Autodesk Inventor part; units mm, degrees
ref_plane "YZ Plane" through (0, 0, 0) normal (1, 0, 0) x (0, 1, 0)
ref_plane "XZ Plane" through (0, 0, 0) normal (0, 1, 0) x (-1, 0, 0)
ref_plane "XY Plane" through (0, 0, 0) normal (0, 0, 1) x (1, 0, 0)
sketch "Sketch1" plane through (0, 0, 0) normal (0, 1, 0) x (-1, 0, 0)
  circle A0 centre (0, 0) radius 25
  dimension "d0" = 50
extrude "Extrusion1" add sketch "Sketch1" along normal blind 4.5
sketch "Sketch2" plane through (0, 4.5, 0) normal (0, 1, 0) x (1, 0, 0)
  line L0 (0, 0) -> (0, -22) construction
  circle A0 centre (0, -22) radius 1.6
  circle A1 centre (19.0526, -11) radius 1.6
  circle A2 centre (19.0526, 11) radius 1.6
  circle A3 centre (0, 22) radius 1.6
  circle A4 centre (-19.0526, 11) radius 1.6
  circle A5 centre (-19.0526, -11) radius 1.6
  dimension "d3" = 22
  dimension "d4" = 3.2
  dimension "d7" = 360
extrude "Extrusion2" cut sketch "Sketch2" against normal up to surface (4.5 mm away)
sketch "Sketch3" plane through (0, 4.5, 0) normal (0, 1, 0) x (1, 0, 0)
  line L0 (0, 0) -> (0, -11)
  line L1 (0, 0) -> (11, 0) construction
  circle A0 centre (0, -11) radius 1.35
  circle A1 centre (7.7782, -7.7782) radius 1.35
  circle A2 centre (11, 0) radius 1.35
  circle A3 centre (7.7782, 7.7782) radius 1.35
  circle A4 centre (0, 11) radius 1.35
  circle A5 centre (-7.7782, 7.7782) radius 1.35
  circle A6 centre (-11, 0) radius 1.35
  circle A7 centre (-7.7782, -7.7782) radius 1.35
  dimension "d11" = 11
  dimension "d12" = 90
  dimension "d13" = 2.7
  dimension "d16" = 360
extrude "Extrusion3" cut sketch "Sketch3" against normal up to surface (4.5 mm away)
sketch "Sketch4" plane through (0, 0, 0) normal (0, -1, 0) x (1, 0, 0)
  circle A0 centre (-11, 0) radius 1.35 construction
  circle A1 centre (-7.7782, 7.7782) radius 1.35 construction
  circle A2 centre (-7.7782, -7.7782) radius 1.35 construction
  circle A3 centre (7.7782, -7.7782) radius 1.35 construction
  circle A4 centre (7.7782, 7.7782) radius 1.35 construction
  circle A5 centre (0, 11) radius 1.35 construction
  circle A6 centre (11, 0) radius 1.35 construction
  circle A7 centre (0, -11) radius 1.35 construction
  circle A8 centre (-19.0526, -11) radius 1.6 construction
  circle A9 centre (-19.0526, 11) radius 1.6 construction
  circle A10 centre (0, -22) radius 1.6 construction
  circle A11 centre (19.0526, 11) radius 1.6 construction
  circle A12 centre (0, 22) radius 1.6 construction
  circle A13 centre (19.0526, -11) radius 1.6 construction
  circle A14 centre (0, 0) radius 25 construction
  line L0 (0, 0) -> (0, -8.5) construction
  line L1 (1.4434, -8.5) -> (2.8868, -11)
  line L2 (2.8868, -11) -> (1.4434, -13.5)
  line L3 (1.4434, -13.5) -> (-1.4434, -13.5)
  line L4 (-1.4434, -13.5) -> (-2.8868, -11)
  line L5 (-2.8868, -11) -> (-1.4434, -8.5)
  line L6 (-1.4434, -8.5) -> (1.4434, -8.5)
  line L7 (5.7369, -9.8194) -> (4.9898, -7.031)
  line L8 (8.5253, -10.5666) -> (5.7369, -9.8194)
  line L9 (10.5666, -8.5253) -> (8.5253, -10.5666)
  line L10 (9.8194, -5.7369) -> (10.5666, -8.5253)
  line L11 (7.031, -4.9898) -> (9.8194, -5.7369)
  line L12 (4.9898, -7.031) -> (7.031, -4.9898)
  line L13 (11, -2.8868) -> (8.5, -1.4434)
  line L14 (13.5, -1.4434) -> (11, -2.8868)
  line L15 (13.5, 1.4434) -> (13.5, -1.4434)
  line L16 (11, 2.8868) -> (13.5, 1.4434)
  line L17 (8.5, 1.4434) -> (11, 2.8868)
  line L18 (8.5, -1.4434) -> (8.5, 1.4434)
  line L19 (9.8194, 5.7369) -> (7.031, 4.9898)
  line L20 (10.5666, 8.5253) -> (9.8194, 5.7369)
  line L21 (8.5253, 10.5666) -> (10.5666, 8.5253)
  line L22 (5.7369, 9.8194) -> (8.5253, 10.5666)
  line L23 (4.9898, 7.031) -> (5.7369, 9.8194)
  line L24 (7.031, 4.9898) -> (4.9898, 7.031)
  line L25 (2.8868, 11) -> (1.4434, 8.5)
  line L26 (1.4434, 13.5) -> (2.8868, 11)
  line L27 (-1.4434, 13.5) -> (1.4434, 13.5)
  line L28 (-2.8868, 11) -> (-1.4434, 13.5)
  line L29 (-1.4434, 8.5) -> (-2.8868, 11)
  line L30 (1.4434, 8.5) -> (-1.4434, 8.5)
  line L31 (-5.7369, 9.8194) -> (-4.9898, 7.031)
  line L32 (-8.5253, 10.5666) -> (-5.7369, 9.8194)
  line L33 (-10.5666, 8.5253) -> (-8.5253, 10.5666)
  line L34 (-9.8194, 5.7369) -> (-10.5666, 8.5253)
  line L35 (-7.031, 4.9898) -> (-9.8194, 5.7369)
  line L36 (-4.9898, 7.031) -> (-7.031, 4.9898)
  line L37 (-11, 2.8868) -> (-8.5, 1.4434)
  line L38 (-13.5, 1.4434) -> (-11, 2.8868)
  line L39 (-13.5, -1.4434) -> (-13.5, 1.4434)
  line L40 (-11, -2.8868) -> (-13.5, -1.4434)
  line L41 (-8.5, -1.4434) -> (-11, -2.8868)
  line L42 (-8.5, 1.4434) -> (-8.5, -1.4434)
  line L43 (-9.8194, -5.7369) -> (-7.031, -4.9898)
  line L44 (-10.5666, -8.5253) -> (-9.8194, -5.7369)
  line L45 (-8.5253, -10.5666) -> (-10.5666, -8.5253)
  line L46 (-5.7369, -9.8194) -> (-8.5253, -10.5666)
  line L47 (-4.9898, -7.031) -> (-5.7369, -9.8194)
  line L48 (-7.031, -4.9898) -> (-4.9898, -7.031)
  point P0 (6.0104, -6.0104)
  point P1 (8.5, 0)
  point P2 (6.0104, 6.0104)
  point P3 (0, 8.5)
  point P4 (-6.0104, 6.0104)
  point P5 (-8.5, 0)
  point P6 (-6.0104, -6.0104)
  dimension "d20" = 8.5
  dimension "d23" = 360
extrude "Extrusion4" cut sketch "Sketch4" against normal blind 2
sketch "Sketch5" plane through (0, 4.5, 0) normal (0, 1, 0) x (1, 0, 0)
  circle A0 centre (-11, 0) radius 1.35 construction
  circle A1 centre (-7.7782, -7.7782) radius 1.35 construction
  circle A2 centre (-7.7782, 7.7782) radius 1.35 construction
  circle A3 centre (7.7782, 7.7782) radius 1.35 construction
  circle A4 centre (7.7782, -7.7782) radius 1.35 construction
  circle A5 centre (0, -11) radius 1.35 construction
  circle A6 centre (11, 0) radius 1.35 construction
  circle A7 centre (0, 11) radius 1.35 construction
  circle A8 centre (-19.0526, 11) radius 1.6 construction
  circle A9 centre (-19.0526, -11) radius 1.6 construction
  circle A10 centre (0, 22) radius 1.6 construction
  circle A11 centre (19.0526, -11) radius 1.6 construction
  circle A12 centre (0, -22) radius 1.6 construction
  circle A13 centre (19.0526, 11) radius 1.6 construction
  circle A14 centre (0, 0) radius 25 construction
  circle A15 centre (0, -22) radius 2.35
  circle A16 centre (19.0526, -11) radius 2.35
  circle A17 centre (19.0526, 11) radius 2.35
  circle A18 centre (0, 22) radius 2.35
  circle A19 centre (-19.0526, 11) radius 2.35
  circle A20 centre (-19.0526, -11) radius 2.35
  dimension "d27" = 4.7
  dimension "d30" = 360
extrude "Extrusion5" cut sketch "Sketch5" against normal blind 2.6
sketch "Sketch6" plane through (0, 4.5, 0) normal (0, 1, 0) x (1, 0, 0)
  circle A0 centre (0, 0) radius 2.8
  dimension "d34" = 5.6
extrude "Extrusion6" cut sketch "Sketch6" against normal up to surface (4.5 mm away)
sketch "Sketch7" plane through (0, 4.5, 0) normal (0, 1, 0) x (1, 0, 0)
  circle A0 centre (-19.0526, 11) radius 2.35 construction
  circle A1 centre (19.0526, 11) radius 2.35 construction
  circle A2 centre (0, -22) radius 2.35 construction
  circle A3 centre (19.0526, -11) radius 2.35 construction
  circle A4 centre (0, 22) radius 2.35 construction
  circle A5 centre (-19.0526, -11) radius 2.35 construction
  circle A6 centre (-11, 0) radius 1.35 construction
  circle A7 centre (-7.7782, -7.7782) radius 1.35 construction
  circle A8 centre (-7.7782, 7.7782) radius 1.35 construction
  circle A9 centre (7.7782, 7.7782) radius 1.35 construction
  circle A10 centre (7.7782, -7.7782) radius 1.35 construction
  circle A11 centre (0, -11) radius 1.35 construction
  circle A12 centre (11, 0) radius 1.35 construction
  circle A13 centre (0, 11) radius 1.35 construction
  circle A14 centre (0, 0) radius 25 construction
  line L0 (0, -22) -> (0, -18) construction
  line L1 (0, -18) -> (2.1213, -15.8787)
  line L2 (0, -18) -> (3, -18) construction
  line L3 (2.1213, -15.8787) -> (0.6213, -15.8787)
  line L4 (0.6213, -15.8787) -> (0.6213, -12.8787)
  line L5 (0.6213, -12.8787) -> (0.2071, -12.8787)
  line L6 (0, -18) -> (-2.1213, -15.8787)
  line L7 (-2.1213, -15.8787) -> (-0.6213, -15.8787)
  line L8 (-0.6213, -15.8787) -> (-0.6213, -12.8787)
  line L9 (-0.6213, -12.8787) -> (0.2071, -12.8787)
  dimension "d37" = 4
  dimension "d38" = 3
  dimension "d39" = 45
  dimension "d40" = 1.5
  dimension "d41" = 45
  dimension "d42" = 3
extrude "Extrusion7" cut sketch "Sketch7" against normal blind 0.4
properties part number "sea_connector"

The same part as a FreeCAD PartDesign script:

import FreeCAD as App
import Part
import Sketcher
from FreeCAD import Vector
Q = App.Units.Quantity


def add_polygon(sketch, points):
    """Adds a closed chain of lines whose ends are joined by coincident constraints."""
    first, n = sketch.GeometryCount, len(points)
    for a, b in zip(points, points[1:] + points[:1]):
        sketch.addGeometry(Part.LineSegment(App.Vector(*a, 0), App.Vector(*b, 0)), False)
    for i in range(n):
        sketch.addConstraint(Sketcher.Constraint("Coincident", first + i, 2, first + (i + 1) % n, 1))

doc = App.newDocument("Part")
body = doc.addObject("PartDesign::Body", "Body")

sketch1 = body.newObject("Sketcher::SketchObject", "Sketch")
sketch1.AttachmentSupport = (doc.getObject("XZ_Plane"), [""])
sketch1.MapMode = "FlatFace"
sketch1.addGeometry(Part.Circle(Vector(0, 0, 0), Vector(0, 0, 1), 25), False)
sketch1.addConstraint(Sketcher.Constraint("Coincident", 0, 3, -1, 1))
sketch1.addConstraint(Sketcher.Constraint("Diameter", 0, 50.0))
pad1 = body.newObject("PartDesign::Pad", "Pad")
pad1.Profile = sketch1
pad1.Length = 4.5
pad1.Reversed = True

sketch2 = body.newObject("Sketcher::SketchObject", "Sketch001")
sketch2.AttachmentSupport = (doc.getObject("XZ_Plane"), [""])
sketch2.MapMode = "FlatFace"
sketch2.AttachmentOffset = App.Placement(Vector(0, 0, -4.5), App.Rotation())
sketch2.addGeometry(Part.Circle(Vector(0, 22, 0), Vector(0, 0, 1), 1.6), False)
sketch2.addGeometry(Part.Circle(Vector(19.0526, 11, 0), Vector(0, 0, 1), 1.6), False)
sketch2.addGeometry(Part.Circle(Vector(19.0526, -11, 0), Vector(0, 0, 1), 1.6), False)
sketch2.addGeometry(Part.Circle(Vector(0, -22, 0), Vector(0, 0, 1), 1.6), False)
sketch2.addGeometry(Part.Circle(Vector(-19.0526, -11, 0), Vector(0, 0, 1), 1.6), False)
sketch2.addGeometry(Part.Circle(Vector(-19.0526, 11, 0), Vector(0, 0, 1), 1.6), False)
sketch2.addConstraint(Sketcher.Constraint("Equal", 0, 1))
sketch2.addConstraint(Sketcher.Constraint("Equal", 1, 2))
sketch2.addConstraint(Sketcher.Constraint("Equal", 2, 3))
sketch2.addConstraint(Sketcher.Constraint("Equal", 3, 4))
sketch2.addConstraint(Sketcher.Constraint("Equal", 4, 5))
sketch2.addConstraint(Sketcher.Constraint("Symmetric", 0, 3, 3, 3, -1, 1))
sketch2.addConstraint(Sketcher.Constraint("Symmetric", 1, 3, 4, 3, -1, 1))
sketch2.addConstraint(Sketcher.Constraint("Symmetric", 2, 3, 5, 3, -1, 1))
sketch2.addConstraint(Sketcher.Constraint("Symmetric", 2, 3, 4, 3, -2))
sketch2.addConstraint(Sketcher.Constraint("PointOnObject", 0, 3, -2))
sketch2.addConstraint(Sketcher.Constraint("Diameter", 0, 3.2))
sketch2.addConstraint(Sketcher.Constraint("DistanceY", -1, 1, 0, 3, 22.0))
sketch2.addConstraint(Sketcher.Constraint("DistanceY", 2, 3, 1, 3, 22.0))
sketch2.addConstraint(Sketcher.Constraint("DistanceX", -1, 1, 1, 3, 19.0526))
pocket1 = body.newObject("PartDesign::Pocket", "Pocket")
pocket1.Profile = sketch2
pocket1.Length = 4.5
pocket1.Reversed = True

sketch3 = body.newObject("Sketcher::SketchObject", "Sketch002")
sketch3.AttachmentSupport = (doc.getObject("XZ_Plane"), [""])
sketch3.MapMode = "FlatFace"
sketch3.AttachmentOffset = App.Placement(Vector(0, 0, -4.5), App.Rotation())
sketch3.addGeometry(Part.Circle(Vector(0, 11, 0), Vector(0, 0, 1), 1.35), False)
sketch3.addGeometry(Part.Circle(Vector(7.7782, 7.7782, 0), Vector(0, 0, 1), 1.35), False)
sketch3.addGeometry(Part.Circle(Vector(11, 0, 0), Vector(0, 0, 1), 1.35), False)
sketch3.addGeometry(Part.Circle(Vector(7.7782, -7.7782, 0), Vector(0, 0, 1), 1.35), False)
sketch3.addGeometry(Part.Circle(Vector(0, -11, 0), Vector(0, 0, 1), 1.35), False)
sketch3.addGeometry(Part.Circle(Vector(-7.7782, -7.7782, 0), Vector(0, 0, 1), 1.35), False)
sketch3.addGeometry(Part.Circle(Vector(-11, 0, 0), Vector(0, 0, 1), 1.35), False)
sketch3.addGeometry(Part.Circle(Vector(-7.7782, 7.7782, 0), Vector(0, 0, 1), 1.35), False)
sketch3.addConstraint(Sketcher.Constraint("Equal", 0, 1))
sketch3.addConstraint(Sketcher.Constraint("Equal", 1, 2))
sketch3.addConstraint(Sketcher.Constraint("Equal", 2, 3))
sketch3.addConstraint(Sketcher.Constraint("Equal", 3, 4))
sketch3.addConstraint(Sketcher.Constraint("Equal", 4, 5))
sketch3.addConstraint(Sketcher.Constraint("Equal", 5, 6))
sketch3.addConstraint(Sketcher.Constraint("Equal", 6, 7))
sketch3.addConstraint(Sketcher.Constraint("Symmetric", 0, 3, 4, 3, -1, 1))
sketch3.addConstraint(Sketcher.Constraint("Symmetric", 1, 3, 5, 3, -1, 1))
sketch3.addConstraint(Sketcher.Constraint("Symmetric", 2, 3, 6, 3, -1, 1))
sketch3.addConstraint(Sketcher.Constraint("Symmetric", 3, 3, 7, 3, -1, 1))
sketch3.addConstraint(Sketcher.Constraint("Symmetric", 3, 3, 5, 3, -2))
sketch3.addConstraint(Sketcher.Constraint("PointOnObject", 0, 3, -2))
sketch3.addConstraint(Sketcher.Constraint("PointOnObject", 2, 3, -1))
sketch3.addConstraint(Sketcher.Constraint("Diameter", 0, 2.7))
sketch3.addConstraint(Sketcher.Constraint("DistanceY", -1, 1, 0, 3, 11.0))
sketch3.addConstraint(Sketcher.Constraint("DistanceX", -1, 1, 2, 3, 11.0))
sketch3.addConstraint(Sketcher.Constraint("DistanceX", -1, 1, 1, 3, 7.7782))
sketch3.addConstraint(Sketcher.Constraint("DistanceY", -1, 1, 1, 3, 7.7782))
pocket2 = body.newObject("PartDesign::Pocket", "Pocket001")
pocket2.Profile = sketch3
pocket2.Length = 4.5
pocket2.Reversed = True

sketch4 = body.newObject("Sketcher::SketchObject", "Sketch003")
sketch4.AttachmentSupport = (doc.getObject("XZ_Plane"), [""])
sketch4.MapMode = "FlatFace"
add_polygon(sketch4, [(2.8868, -11), (1.4434, -8.5), (-1.4434, -8.5), (-2.8868, -11), (-1.4434, -13.5), (1.4434, -13.5)])
add_polygon(sketch4, [(4.9898, -7.031), (5.7369, -9.8194), (8.5253, -10.5666), (10.5666, -8.5253), (9.8194, -5.7369), (7.031, -4.9898)])
add_polygon(sketch4, [(8.5, -1.4434), (11, -2.8868), (13.5, -1.4434), (13.5, 1.4434), (11, 2.8868), (8.5, 1.4434)])
add_polygon(sketch4, [(7.031, 4.9898), (9.8194, 5.7369), (10.5666, 8.5253), (8.5253, 10.5666), (5.7369, 9.8194), (4.9898, 7.031)])
add_polygon(sketch4, [(1.4434, 8.5), (2.8868, 11), (1.4434, 13.5), (-1.4434, 13.5), (-2.8868, 11), (-1.4434, 8.5)])
add_polygon(sketch4, [(-4.9898, 7.031), (-5.7369, 9.8194), (-8.5253, 10.5666), (-10.5666, 8.5253), (-9.8194, 5.7369), (-7.031, 4.9898)])
add_polygon(sketch4, [(-8.5, 1.4434), (-11, 2.8868), (-13.5, 1.4434), (-13.5, -1.4434), (-11, -2.8868), (-8.5, -1.4434)])
add_polygon(sketch4, [(-7.031, -4.9898), (-9.8194, -5.7369), (-10.5666, -8.5253), (-8.5253, -10.5666), (-5.7369, -9.8194), (-4.9898, -7.031)])
sketch4.addConstraint(Sketcher.Constraint("Horizontal", 1))
sketch4.addConstraint(Sketcher.Constraint("Horizontal", 4))
sketch4.addConstraint(Sketcher.Constraint("Vertical", 14))
sketch4.addConstraint(Sketcher.Constraint("Vertical", 17))
sketch4.addConstraint(Sketcher.Constraint("Horizontal", 26))
sketch4.addConstraint(Sketcher.Constraint("Horizontal", 29))
sketch4.addConstraint(Sketcher.Constraint("Vertical", 38))
sketch4.addConstraint(Sketcher.Constraint("Vertical", 41))
sketch4.addConstraint(Sketcher.Constraint("Symmetric", 2, 2, 24, 2, -1, 1))
sketch4.addConstraint(Sketcher.Constraint("Symmetric", 3, 2, 25, 2, -1, 1))
sketch4.addConstraint(Sketcher.Constraint("Symmetric", 5, 2, 27, 2, -1, 1))
sketch4.addConstraint(Sketcher.Constraint("Symmetric", 0, 2, 28, 2, -1, 1))
sketch4.addConstraint(Sketcher.Constraint("Symmetric", 6, 2, 30, 2, -1, 1))
sketch4.addConstraint(Sketcher.Constraint("Symmetric", 7, 2, 31, 2, -1, 1))
sketch4.addConstraint(Sketcher.Constraint("Symmetric", 8, 2, 32, 2, -1, 1))
sketch4.addConstraint(Sketcher.Constraint("Symmetric", 9, 2, 33, 2, -1, 1))
sketch4.addConstraint(Sketcher.Constraint("Symmetric", 10, 2, 34, 2, -1, 1))
sketch4.addConstraint(Sketcher.Constraint("Symmetric", 11, 2, 35, 2, -1, 1))
sketch4.addConstraint(Sketcher.Constraint("Symmetric", 12, 2, 36, 2, -1, 1))
sketch4.addConstraint(Sketcher.Constraint("Symmetric", 13, 2, 37, 2, -1, 1))
sketch4.addConstraint(Sketcher.Constraint("Symmetric", 15, 2, 39, 2, -1, 1))
sketch4.addConstraint(Sketcher.Constraint("Symmetric", 16, 2, 40, 2, -1, 1))
sketch4.addConstraint(Sketcher.Constraint("Symmetric", 18, 2, 42, 2, -1, 1))
sketch4.addConstraint(Sketcher.Constraint("Symmetric", 19, 2, 43, 2, -1, 1))
sketch4.addConstraint(Sketcher.Constraint("Symmetric", 20, 2, 44, 2, -1, 1))
sketch4.addConstraint(Sketcher.Constraint("Symmetric", 21, 2, 45, 2, -1, 1))
sketch4.addConstraint(Sketcher.Constraint("Symmetric", 22, 2, 46, 2, -1, 1))
sketch4.addConstraint(Sketcher.Constraint("Symmetric", 23, 2, 47, 2, -1, 1))
sketch4.addConstraint(Sketcher.Constraint("Symmetric", 2, 2, 5, 2, -2))
sketch4.addConstraint(Sketcher.Constraint("Symmetric", 21, 2, 30, 2, -2))
sketch4.addConstraint(Sketcher.Constraint("Symmetric", 20, 2, 31, 2, -2))
sketch4.addConstraint(Sketcher.Constraint("Symmetric", 19, 2, 32, 2, -2))
sketch4.addConstraint(Sketcher.Constraint("Symmetric", 18, 2, 33, 2, -2))
sketch4.addConstraint(Sketcher.Constraint("Symmetric", 23, 2, 34, 2, -2))
sketch4.addConstraint(Sketcher.Constraint("Symmetric", 22, 2, 35, 2, -2))
sketch4.addConstraint(Sketcher.Constraint("Symmetric", 15, 2, 36, 2, -2))
sketch4.addConstraint(Sketcher.Constraint("Parallel", 0, 3))
sketch4.addConstraint(Sketcher.Constraint("Parallel", 2, 5))
sketch4.addConstraint(Sketcher.Constraint("Parallel", 6, 9))
sketch4.addConstraint(Sketcher.Constraint("Parallel", 7, 10))
sketch4.addConstraint(Sketcher.Constraint("Parallel", 8, 11))
sketch4.addConstraint(Sketcher.Constraint("Perpendicular", 5, 12))
sketch4.addConstraint(Sketcher.Constraint("Perpendicular", 3, 13))
sketch4.addConstraint(Sketcher.Constraint("Parallel", 12, 15))
sketch4.addConstraint(Sketcher.Constraint("Parallel", 13, 16))
sketch4.addConstraint(Sketcher.Constraint("Perpendicular", 9, 18))
sketch4.addConstraint(Sketcher.Constraint("Perpendicular", 11, 20))
sketch4.addConstraint(Sketcher.Constraint("Perpendicular", 15, 24))
sketch4.addConstraint(Sketcher.Constraint("Parallel", 24, 27))
sketch4.addConstraint(Sketcher.Constraint("Perpendicular", 27, 36))
sketch4.addConstraint(Sketcher.Constraint("Parallel", 36, 39))
sketch4.addConstraint(Sketcher.Constraint("Horizontal", 14, 2, 16, 2))
sketch4.addConstraint(Sketcher.Constraint("Horizontal", 13, 2, 17, 2))
sketch4.addConstraint(Sketcher.Constraint("Vertical", 1, 2, 3, 2))
sketch4.addConstraint(Sketcher.Constraint("Equal", 29, 14))
sketch4.addConstraint(Sketcher.Constraint("Equal", 5, 6))
sketch4.addConstraint(Sketcher.Constraint("Equal", 6, 7))
sketch4.addConstraint(Sketcher.Constraint("Equal", 7, 8))
sketch4.addConstraint(Sketcher.Constraint("Equal", 8, 9))
sketch4.addConstraint(Sketcher.Constraint("Equal", 11, 12))
sketch4.addConstraint(Sketcher.Constraint("DistanceY", 0, 2, -1, 1, 8.5))
sketch4.addConstraint(Sketcher.Constraint("DistanceX", -1, 1, 16, 2, 8.5))
sketch4.addConstraint(Sketcher.Constraint("Angle", 0, Q("120.0004 deg")))
sketch4.addConstraint(Sketcher.Constraint("Angle", 6, Q("-75.001 deg")))
sketch4.addConstraint(Sketcher.Constraint("DistanceY", 2, 2, -1, 1, 11.0))
sketch4.addConstraint(Sketcher.Constraint("DistanceX", 5, 2, 6, 2, 2.85))
sketch4.addConstraint(Sketcher.Constraint("DistanceY", 9, 2, 12, 2, 2.85))
sketch4.addConstraint(Sketcher.Constraint("DistanceX", 1, 2, 1, 1, 2.8868))
pocket3 = body.newObject("PartDesign::Pocket", "Pocket002")
pocket3.Profile = sketch4
pocket3.Length = 2

sketch5 = body.newObject("Sketcher::SketchObject", "Sketch004")
sketch5.AttachmentSupport = (doc.getObject("XZ_Plane"), [""])
sketch5.MapMode = "FlatFace"
sketch5.AttachmentOffset = App.Placement(Vector(0, 0, -4.5), App.Rotation())
sketch5.addGeometry(Part.Circle(Vector(0, 22, 0), Vector(0, 0, 1), 2.35), False)
sketch5.addGeometry(Part.Circle(Vector(19.0526, 11, 0), Vector(0, 0, 1), 2.35), False)
sketch5.addGeometry(Part.Circle(Vector(19.0526, -11, 0), Vector(0, 0, 1), 2.35), False)
sketch5.addGeometry(Part.Circle(Vector(0, -22, 0), Vector(0, 0, 1), 2.35), False)
sketch5.addGeometry(Part.Circle(Vector(-19.0526, -11, 0), Vector(0, 0, 1), 2.35), False)
sketch5.addGeometry(Part.Circle(Vector(-19.0526, 11, 0), Vector(0, 0, 1), 2.35), False)
sketch5.addConstraint(Sketcher.Constraint("Equal", 0, 1))
sketch5.addConstraint(Sketcher.Constraint("Equal", 1, 2))
sketch5.addConstraint(Sketcher.Constraint("Equal", 2, 3))
sketch5.addConstraint(Sketcher.Constraint("Equal", 3, 4))
sketch5.addConstraint(Sketcher.Constraint("Equal", 4, 5))
sketch5.addConstraint(Sketcher.Constraint("Symmetric", 0, 3, 3, 3, -1, 1))
sketch5.addConstraint(Sketcher.Constraint("Symmetric", 1, 3, 4, 3, -1, 1))
sketch5.addConstraint(Sketcher.Constraint("Symmetric", 2, 3, 5, 3, -1, 1))
sketch5.addConstraint(Sketcher.Constraint("Symmetric", 2, 3, 4, 3, -2))
sketch5.addConstraint(Sketcher.Constraint("PointOnObject", 0, 3, -2))
sketch5.addConstraint(Sketcher.Constraint("Diameter", 0, 4.7))
sketch5.addConstraint(Sketcher.Constraint("DistanceY", -1, 1, 0, 3, 22.0))
sketch5.addConstraint(Sketcher.Constraint("DistanceY", -1, 1, 1, 3, 11.0))
sketch5.addConstraint(Sketcher.Constraint("DistanceX", -1, 1, 1, 3, 19.0526))
pocket4 = body.newObject("PartDesign::Pocket", "Pocket003")
pocket4.Profile = sketch5
pocket4.Length = 2.6
pocket4.Reversed = True

sketch6 = body.newObject("Sketcher::SketchObject", "Sketch005")
sketch6.AttachmentSupport = (doc.getObject("XZ_Plane"), [""])
sketch6.MapMode = "FlatFace"
sketch6.AttachmentOffset = App.Placement(Vector(0, 0, -4.5), App.Rotation())
sketch6.addGeometry(Part.Circle(Vector(0, 0, 0), Vector(0, 0, 1), 2.8), False)
sketch6.addConstraint(Sketcher.Constraint("Coincident", 0, 3, -1, 1))
sketch6.addConstraint(Sketcher.Constraint("Diameter", 0, 5.6))
pocket5 = body.newObject("PartDesign::Pocket", "Pocket004")
pocket5.Profile = sketch6
pocket5.Length = 4.5
pocket5.Reversed = True

sketch7 = body.newObject("Sketcher::SketchObject", "Sketch006")
sketch7.AttachmentSupport = (doc.getObject("XZ_Plane"), [""])
sketch7.MapMode = "FlatFace"
sketch7.AttachmentOffset = App.Placement(Vector(0, 0, -4.5), App.Rotation())
add_polygon(sketch7, [(-2.1213, 15.8787), (0, 18), (2.1213, 15.8787), (0.6213, 15.8787), (0.6213, 12.8787), (-0.6213, 12.8787), (-0.6213, 15.8787)])
sketch7.addConstraint(Sketcher.Constraint("Horizontal", 2))
sketch7.addConstraint(Sketcher.Constraint("Vertical", 3))
sketch7.addConstraint(Sketcher.Constraint("Horizontal", 4))
sketch7.addConstraint(Sketcher.Constraint("Vertical", 5))
sketch7.addConstraint(Sketcher.Constraint("Horizontal", 6))
sketch7.addConstraint(Sketcher.Constraint("Symmetric", 2, 2, 5, 2, -2))
sketch7.addConstraint(Sketcher.Constraint("PointOnObject", 0, 2, -2))
sketch7.addConstraint(Sketcher.Constraint("Perpendicular", 0, 1))
sketch7.addConstraint(Sketcher.Constraint("Equal", 2, 6))
sketch7.addConstraint(Sketcher.Constraint("DistanceY", 3, 2, 3, 1, 3.0))
sketch7.addConstraint(Sketcher.Constraint("Distance", 0, 3.0))
sketch7.addConstraint(Sketcher.Constraint("DistanceX", 2, 2, 2, 1, 1.5))
sketch7.addConstraint(Sketcher.Constraint("DistanceY", -1, 1, 0, 2, 18.0))
pocket6 = body.newObject("PartDesign::Pocket", "Pocket005")
pocket6.Profile = sketch7
pocket6.Length = 0.4
pocket6.Reversed = True

doc.recompute()
